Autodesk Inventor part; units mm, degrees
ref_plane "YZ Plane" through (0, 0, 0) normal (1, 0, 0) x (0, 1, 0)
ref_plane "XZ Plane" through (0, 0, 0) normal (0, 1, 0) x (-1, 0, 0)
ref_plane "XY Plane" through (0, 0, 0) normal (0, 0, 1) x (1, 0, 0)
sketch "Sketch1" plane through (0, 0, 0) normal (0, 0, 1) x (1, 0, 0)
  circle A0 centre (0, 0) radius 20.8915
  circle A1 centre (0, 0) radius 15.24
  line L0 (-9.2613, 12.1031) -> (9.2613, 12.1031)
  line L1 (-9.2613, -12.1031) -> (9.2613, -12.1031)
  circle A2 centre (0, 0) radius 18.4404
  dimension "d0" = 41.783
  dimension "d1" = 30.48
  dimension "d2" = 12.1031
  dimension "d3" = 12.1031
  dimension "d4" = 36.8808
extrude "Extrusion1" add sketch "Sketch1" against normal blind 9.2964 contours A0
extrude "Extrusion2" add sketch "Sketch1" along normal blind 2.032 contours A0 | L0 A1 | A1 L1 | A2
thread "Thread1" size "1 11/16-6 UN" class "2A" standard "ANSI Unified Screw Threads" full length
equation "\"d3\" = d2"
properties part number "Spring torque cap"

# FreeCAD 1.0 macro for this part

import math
import FreeCAD as App
import Part
import Sketcher
from FreeCAD import Vector
Q = App.Units.Quantity

doc = App.newDocument("Part")
body = doc.addObject("PartDesign::Body", "Body")

# Sketch on XY plane
sketch1 = body.newObject("Sketcher::SketchObject", "Sketch")
sketch1.AttachmentSupport = (doc.getObject("XY_Plane"), [""])
sketch1.MapMode = "FlatFace"
sketch1.addGeometry(Part.Circle(Vector(0, 0, 0), Vector(0, 0, 1), 21), False)
sketch1.addGeometry(Part.Circle(Vector(0, 0, 0), Vector(0, 0, 1), 18), False)
sketch1.addConstraint(Sketcher.Constraint("Coincident", 0, 3, -1, 1))
sketch1.addConstraint(Sketcher.Constraint("Coincident", 1, 3, -1, 1))
sketch1.addConstraint(Sketcher.Constraint("Diameter", 0, Q("1.645 in")))
sketch1.addConstraint(Sketcher.Constraint("Diameter", 1, Q("1.452 in")))
pad1 = body.newObject("PartDesign::Pad", "Pad")
pad1.Profile = sketch1
pad1.Length = Q("0.366 in")
pad1.Reversed = True

# Sketch on XY plane
sketch2 = body.newObject("Sketcher::SketchObject", "Sketch001")
sketch2.AttachmentSupport = (doc.getObject("XY_Plane"), [""])
sketch2.MapMode = "FlatFace"
sketch2.addGeometry(Part.Circle(Vector(0, 0, 0), Vector(0, 0, 1), 21), False)
sketch2.addGeometry(Part.LineSegment(Vector(9, -12, 0), Vector(-9, -12, 0)), False)
sketch2.addGeometry(Part.ArcOfCircle(Part.Circle(Vector(0, 0, 0), Vector(0, 0, 1), 15), math.radians(127), math.radians(233)), False)
sketch2.addGeometry(Part.LineSegment(Vector(-9, 12, 0), Vector(9, 12, 0)), False)
sketch2.addGeometry(Part.ArcOfCircle(Part.Circle(Vector(0, 0, 0), Vector(0, 0, 1), 15), math.radians(-53), math.radians(53)), False)
sketch2.addConstraint(Sketcher.Constraint("Coincident", 1, 2, 2, 2))
sketch2.addConstraint(Sketcher.Constraint("Coincident", 2, 1, 3, 1))
sketch2.addConstraint(Sketcher.Constraint("Coincident", 3, 2, 4, 2))
sketch2.addConstraint(Sketcher.Constraint("Coincident", 4, 1, 1, 1))
sketch2.addConstraint(Sketcher.Constraint("Horizontal", 1))
sketch2.addConstraint(Sketcher.Constraint("Horizontal", 3))
sketch2.addConstraint(Sketcher.Constraint("Coincident", 0, 3, -1, 1))
sketch2.addConstraint(Sketcher.Constraint("Coincident", 2, 3, -1, 1))
sketch2.addConstraint(Sketcher.Constraint("Coincident", 4, 3, -1, 1))
sketch2.addConstraint(Sketcher.Constraint("Equal", 2, 4))
sketch2.addConstraint(Sketcher.Constraint("Vertical", 1, 2, 2, 1))
sketch2.addConstraint(Sketcher.Constraint("Radius", 2, Q("0.6 in")))
sketch2.addConstraint(Sketcher.Constraint("Diameter", 0, Q("1.645 in")))
sketch2.addConstraint(Sketcher.Constraint("DistanceY", 1, 2, -1, 1, Q("0.4765 in")))
pad2 = body.newObject("PartDesign::Pad", "Pad001")
pad2.Profile = sketch2
pad2.Length = Q("0.08 in")

doc.recompute()
